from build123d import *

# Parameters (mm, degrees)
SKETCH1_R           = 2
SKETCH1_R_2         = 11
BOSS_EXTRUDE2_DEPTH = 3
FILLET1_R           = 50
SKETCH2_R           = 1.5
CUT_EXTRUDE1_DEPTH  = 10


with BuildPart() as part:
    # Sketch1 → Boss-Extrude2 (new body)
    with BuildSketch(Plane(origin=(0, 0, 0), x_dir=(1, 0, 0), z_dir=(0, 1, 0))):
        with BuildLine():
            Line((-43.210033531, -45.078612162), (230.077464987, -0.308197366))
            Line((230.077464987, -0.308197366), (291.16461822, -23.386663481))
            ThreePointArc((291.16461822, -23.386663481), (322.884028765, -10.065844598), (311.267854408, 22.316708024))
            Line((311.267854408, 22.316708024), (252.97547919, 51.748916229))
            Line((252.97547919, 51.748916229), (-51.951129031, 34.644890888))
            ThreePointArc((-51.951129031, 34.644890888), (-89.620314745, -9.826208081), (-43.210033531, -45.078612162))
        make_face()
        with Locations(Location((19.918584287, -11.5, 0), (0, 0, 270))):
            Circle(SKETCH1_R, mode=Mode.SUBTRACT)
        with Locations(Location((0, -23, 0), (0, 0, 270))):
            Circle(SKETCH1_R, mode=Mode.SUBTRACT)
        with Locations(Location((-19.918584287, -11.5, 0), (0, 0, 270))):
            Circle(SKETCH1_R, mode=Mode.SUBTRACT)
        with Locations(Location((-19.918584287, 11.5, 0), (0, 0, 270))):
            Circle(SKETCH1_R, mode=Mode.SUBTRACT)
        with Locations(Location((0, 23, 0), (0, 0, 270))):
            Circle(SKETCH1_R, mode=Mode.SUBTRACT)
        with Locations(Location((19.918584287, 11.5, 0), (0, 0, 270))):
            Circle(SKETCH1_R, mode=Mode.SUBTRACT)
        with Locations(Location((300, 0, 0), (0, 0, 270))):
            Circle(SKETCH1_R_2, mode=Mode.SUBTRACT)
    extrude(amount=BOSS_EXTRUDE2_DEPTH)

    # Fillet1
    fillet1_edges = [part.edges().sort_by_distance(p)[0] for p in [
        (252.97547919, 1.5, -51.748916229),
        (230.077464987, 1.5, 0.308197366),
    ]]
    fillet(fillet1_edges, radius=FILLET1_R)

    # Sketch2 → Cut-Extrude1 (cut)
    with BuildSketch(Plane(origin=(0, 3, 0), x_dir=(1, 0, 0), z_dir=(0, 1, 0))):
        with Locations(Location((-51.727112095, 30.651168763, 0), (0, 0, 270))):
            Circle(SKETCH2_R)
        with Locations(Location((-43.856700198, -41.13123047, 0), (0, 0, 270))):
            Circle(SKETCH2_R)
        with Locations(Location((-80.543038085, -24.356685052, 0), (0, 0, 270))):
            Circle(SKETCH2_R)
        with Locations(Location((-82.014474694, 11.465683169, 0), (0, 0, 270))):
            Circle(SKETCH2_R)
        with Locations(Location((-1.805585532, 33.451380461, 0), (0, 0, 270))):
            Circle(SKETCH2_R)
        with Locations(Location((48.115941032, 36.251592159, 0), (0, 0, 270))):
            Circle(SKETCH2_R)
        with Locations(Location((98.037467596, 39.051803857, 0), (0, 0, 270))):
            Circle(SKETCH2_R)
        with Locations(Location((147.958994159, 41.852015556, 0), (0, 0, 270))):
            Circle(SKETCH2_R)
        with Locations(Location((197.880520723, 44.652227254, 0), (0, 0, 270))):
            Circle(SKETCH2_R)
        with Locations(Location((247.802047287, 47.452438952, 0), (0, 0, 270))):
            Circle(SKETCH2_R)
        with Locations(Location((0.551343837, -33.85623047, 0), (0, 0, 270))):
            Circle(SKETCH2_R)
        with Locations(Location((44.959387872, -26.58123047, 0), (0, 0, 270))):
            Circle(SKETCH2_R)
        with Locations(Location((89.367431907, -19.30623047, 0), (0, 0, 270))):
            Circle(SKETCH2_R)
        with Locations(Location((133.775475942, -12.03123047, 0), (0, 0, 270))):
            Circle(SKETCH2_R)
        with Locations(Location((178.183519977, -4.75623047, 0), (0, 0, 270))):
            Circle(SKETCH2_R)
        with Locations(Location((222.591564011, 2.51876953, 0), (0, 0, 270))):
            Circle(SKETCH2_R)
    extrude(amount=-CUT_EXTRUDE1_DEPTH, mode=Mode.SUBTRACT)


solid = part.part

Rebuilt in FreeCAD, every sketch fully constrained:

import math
import FreeCAD as App
import Part
import Sketcher


def edges_at(feature, points):
    """Names of the edges that pass closest to the given points."""
    edges = feature.Shape.Edges
    near = lambda p: min(range(len(edges)), key=lambda i: edges[i].distToShape(Part.Vertex(*p))[0])
    return sorted({f"Edge{near(p) + 1}" for p in points})

doc = App.newDocument("Part")
body = doc.addObject("PartDesign::Body", "Body")

# Sketch on XZ plane
sketch1 = body.newObject("Sketcher::SketchObject", "Sketch")
sketch1.AttachmentSupport = (doc.getObject("XZ_Plane"), [""])
sketch1.MapMode = "FlatFace"
sketch1.addGeometry(Part.LineSegment(App.Vector(-43.2, 45.1, 0), App.Vector(230.1, 0.3, 0)), False)
sketch1.addGeometry(Part.LineSegment(App.Vector(230.1, 0.3, 0), App.Vector(291.2, 23.4, 0)), False)
sketch1.addGeometry(Part.ArcOfCircle(Part.Circle(App.Vector(300, 0, 0), App.Vector(0, 0, 1), 25), math.radians(-63), math.radians(111)), False)
sketch1.addGeometry(Part.LineSegment(App.Vector(311.3, -22.3, 0), App.Vector(253, -51.7, 0)), False)
sketch1.addGeometry(Part.LineSegment(App.Vector(253, -51.7, 0), App.Vector(-52, -34.6, 0)), False)
sketch1.addGeometry(Part.ArcOfCircle(Part.Circle(App.Vector(-49.7, 5.4, 0), App.Vector(0, 0, 1), 40.2), math.radians(81), math.radians(267)), False)
sketch1.addGeometry(Part.Circle(App.Vector(0, 23, 0), App.Vector(0, 0, 1), 2), False)
sketch1.addGeometry(Part.Circle(App.Vector(-19.9, 11.5, 0), App.Vector(0, 0, 1), 2), False)
sketch1.addGeometry(Part.Circle(App.Vector(19.9, 11.5, 0), App.Vector(0, 0, 1), 2), False)
sketch1.addGeometry(Part.Circle(App.Vector(300, 0, 0), App.Vector(0, 0, 1), 11), False)
sketch1.addGeometry(Part.Circle(App.Vector(-19.9, -11.5, 0), App.Vector(0, 0, 1), 2), False)
sketch1.addGeometry(Part.Circle(App.Vector(19.9, -11.5, 0), App.Vector(0, 0, 1), 2), False)
sketch1.addGeometry(Part.Circle(App.Vector(0, -23, 0), App.Vector(0, 0, 1), 2), False)
sketch1.addConstraint(Sketcher.Constraint("Coincident", 0, 2, 1, 1))
sketch1.addConstraint(Sketcher.Constraint("Tangent", 1, 2, 2, 2))
sketch1.addConstraint(Sketcher.Constraint("Tangent", 2, 1, 3, 1))
sketch1.addConstraint(Sketcher.Constraint("Coincident", 3, 2, 4, 1))
sketch1.addConstraint(Sketcher.Constraint("Tangent", 4, 2, 5, 2))
sketch1.addConstraint(Sketcher.Constraint("Tangent", 5, 1, 0, 1))
sketch1.addConstraint(Sketcher.Constraint("Coincident", 9, 3, 2, 3))
sketch1.addConstraint(Sketcher.Constraint("Equal", 6, 7))
sketch1.addConstraint(Sketcher.Constraint("Equal", 7, 8))
sketch1.addConstraint(Sketcher.Constraint("Equal", 8, 10))
sketch1.addConstraint(Sketcher.Constraint("Equal", 10, 11))
sketch1.addConstraint(Sketcher.Constraint("Equal", 11, 12))
sketch1.addConstraint(Sketcher.Constraint("Symmetric", 8, 3, 10, 3, -1, 1))
sketch1.addConstraint(Sketcher.Constraint("Symmetric", 7, 3, 11, 3, -1, 1))
sketch1.addConstraint(Sketcher.Constraint("Symmetric", 6, 3, 12, 3, -1, 1))
sketch1.addConstraint(Sketcher.Constraint("Symmetric", 7, 3, 8, 3, -2))
sketch1.addConstraint(Sketcher.Constraint("PointOnObject", 2, 3, -1))
sketch1.addConstraint(Sketcher.Constraint("PointOnObject", 6, 3, -2))
sketch1.addConstraint(Sketcher.Constraint("Equal", 1, 3))
sketch1.addConstraint(Sketcher.Constraint("Diameter", 6, 4.0))
sketch1.addConstraint(Sketcher.Constraint("Diameter", 9, 22.0))
sketch1.addConstraint(Sketcher.Constraint("Radius", 2, 25.0))
sketch1.addConstraint(Sketcher.Constraint("DistanceX", -1, 1, 2, 3, 300.0))
sketch1.addConstraint(Sketcher.Constraint("DistanceY", -1, 1, 6, 3, 23.0))
sketch1.addConstraint(Sketcher.Constraint("DistanceY", 10, 3, 7, 3, 23.0))
sketch1.addConstraint(Sketcher.Constraint("Radius", 5, 40.157391))
sketch1.addConstraint(Sketcher.Constraint("Distance", 0, 276.930401))
sketch1.addConstraint(Sketcher.Constraint("Distance", 1, 65.30127))
sketch1.addConstraint(Sketcher.Constraint("DistanceX", -1, 1, 1, 2, 291.164618))
sketch1.addConstraint(Sketcher.Constraint("DistanceY", 2, 1, -1, 1, 22.316708))
sketch1.addConstraint(Sketcher.Constraint("DistanceX", 4, 2, -1, 1, 51.951129))
sketch1.addConstraint(Sketcher.Constraint("DistanceX", 5, 3, 7, 3, 29.783561))
pad1 = body.newObject("PartDesign::Pad", "Pad")
pad1.Profile = sketch1
pad1.Length = 3
pad1.Reversed = True
doc.recompute()

fillet = body.newObject("PartDesign::Fillet", "Fillet")
fillet.Base = (pad1, edges_at(pad1, [(252.975, 1.5, -51.749), (230.077, 1.5, 0.308)]))
fillet.Radius = 50

# Sketch on XZ plane
sketch2 = body.newObject("Sketcher::SketchObject", "Sketch001")
sketch2.AttachmentSupport = (doc.getObject("XZ_Plane"), [""])
sketch2.MapMode = "FlatFace"
sketch2.AttachmentOffset = App.Placement(App.Vector(0, 0, -3), App.Rotation())
sketch2.addGeometry(Part.Circle(App.Vector(-51.7, -30.7, 0), App.Vector(0, 0, 1), 1.5), False)
sketch2.addGeometry(Part.Circle(App.Vector(-43.9, 41.1, 0), App.Vector(0, 0, 1), 1.5), False)
sketch2.addGeometry(Part.Circle(App.Vector(-80.5, 24.4, 0), App.Vector(0, 0, 1), 1.5), False)
sketch2.addGeometry(Part.Circle(App.Vector(-82, -11.5, 0), App.Vector(0, 0, 1), 1.5), False)
sketch2.addGeometry(Part.Circle(App.Vector(-1.8, -33.5, 0), App.Vector(0, 0, 1), 1.5), False)
sketch2.addGeometry(Part.Circle(App.Vector(48.1, -36.3, 0), App.Vector(0, 0, 1), 1.5), False)
sketch2.addGeometry(Part.Circle(App.Vector(98, -39.1, 0), App.Vector(0, 0, 1), 1.5), False)
sketch2.addGeometry(Part.Circle(App.Vector(148, -41.9, 0), App.Vector(0, 0, 1), 1.5), False)
sketch2.addGeometry(Part.Circle(App.Vector(197.9, -44.7, 0), App.Vector(0, 0, 1), 1.5), False)
sketch2.addGeometry(Part.Circle(App.Vector(247.8, -47.5, 0), App.Vector(0, 0, 1), 1.5), False)
sketch2.addGeometry(Part.Circle(App.Vector(0.6, 33.9, 0), App.Vector(0, 0, 1), 1.5), False)
sketch2.addGeometry(Part.Circle(App.Vector(45, 26.6, 0), App.Vector(0, 0, 1), 1.5), False)
sketch2.addGeometry(Part.Circle(App.Vector(89.4, 19.3, 0), App.Vector(0, 0, 1), 1.5), False)
sketch2.addGeometry(Part.Circle(App.Vector(133.8, 12, 0), App.Vector(0, 0, 1), 1.5), False)
sketch2.addGeometry(Part.Circle(App.Vector(178.2, 4.8, 0), App.Vector(0, 0, 1), 1.5), False)
sketch2.addGeometry(Part.Circle(App.Vector(222.6, -2.5, 0), App.Vector(0, 0, 1), 1.5), False)
sketch2.addConstraint(Sketcher.Constraint("Equal", 0, 1))
sketch2.addConstraint(Sketcher.Constraint("Equal", 1, 2))
sketch2.addConstraint(Sketcher.Constraint("Equal", 2, 3))
sketch2.addConstraint(Sketcher.Constraint("Equal", 3, 4))
sketch2.addConstraint(Sketcher.Constraint("Equal", 4, 5))
sketch2.addConstraint(Sketcher.Constraint("Equal", 5, 6))
sketch2.addConstraint(Sketcher.Constraint("Equal", 6, 7))
sketch2.addConstraint(Sketcher.Constraint("Equal", 7, 8))
sketch2.addConstraint(Sketcher.Constraint("Equal", 8, 9))
sketch2.addConstraint(Sketcher.Constraint("Equal", 9, 10))
sketch2.addConstraint(Sketcher.Constraint("Equal", 10, 11))
sketch2.addConstraint(Sketcher.Constraint("Equal", 11, 12))
sketch2.addConstraint(Sketcher.Constraint("Equal", 12, 13))
sketch2.addConstraint(Sketcher.Constraint("Equal", 13, 14))
sketch2.addConstraint(Sketcher.Constraint("Equal", 14, 15))
sketch2.addConstraint(Sketcher.Constraint("Diameter", 0, 3.0))
sketch2.addConstraint(Sketcher.Constraint("DistanceY", 11, 3, 1, 3, 14.55))
sketch2.addConstraint(Sketcher.Constraint("DistanceY", 12, 3, 10, 3, 14.55))
sketch2.addConstraint(Sketcher.Constraint("DistanceY", 13, 3, 11, 3, 14.55))
sketch2.addConstraint(Sketcher.Constraint("DistanceY", 14, 3, 12, 3, 14.55))
sketch2.addConstraint(Sketcher.Constraint("DistanceY", 15, 3, 13, 3, 14.55))
sketch2.addConstraint(Sketcher.Constraint("DistanceY", 10, 3, 1, 3, 7.275))
sketch2.addConstraint(Sketcher.Constraint("DistanceX", 14, 3, 8, 3, 19.697001))
sketch2.addConstraint(Sketcher.Constraint("DistanceX", 1, 3, -1, 1, 43.8567))
sketch2.addConstraint(Sketcher.Constraint("DistanceY", 0, 3, 1, 3, 71.782399))
sketch2.addConstraint(Sketcher.Constraint("DistanceY", 0, 3, -1, 1, 30.651169))
sketch2.addConstraint(Sketcher.Constraint("DistanceX", 2, 3, -1, 1, 80.543038))
sketch2.addConstraint(Sketcher.Constraint("DistanceY", 4, 3, -1, 1, 33.45138))
sketch2.addConstraint(Sketcher.Constraint("DistanceX", -1, 1, 5, 3, 48.115941))
sketch2.addConstraint(Sketcher.Constraint("DistanceX", -1, 1, 8, 3, 197.880521))
sketch2.addConstraint(Sketcher.Constraint("DistanceY", 9, 3, -1, 1, 47.452439))
sketch2.addConstraint(Sketcher.Constraint("DistanceX", -1, 1, 12, 3, 89.367432))
sketch2.addConstraint(Sketcher.Constraint("DistanceX", 0, 3, 1, 3, 7.870412))
sketch2.addConstraint(Sketcher.Constraint("DistanceY", 3, 3, 2, 3, 35.822368))
sketch2.addConstraint(Sketcher.Constraint("DistanceX", 3, 3, 4, 3, 80.208889))
sketch2.addConstraint(Sketcher.Constraint("DistanceY", 5, 3, 4, 3, 2.800212))
sketch2.addConstraint(Sketcher.Constraint("DistanceY", 5, 3, 3, 3, 24.785909))
sketch2.addConstraint(Sketcher.Constraint("DistanceY", 6, 3, 5, 3, 2.800212))
sketch2.addConstraint(Sketcher.Constraint("DistanceX", 0, 3, 6, 3, 149.76458))
sketch2.addConstraint(Sketcher.Constraint("DistanceY", 7, 3, 6, 3, 2.800212))
sketch2.addConstraint(Sketcher.Constraint("DistanceX", 4, 3, 7, 3, 149.76458))
sketch2.addConstraint(Sketcher.Constraint("DistanceY", 8, 3, 7, 3, 2.800212))
sketch2.addConstraint(Sketcher.Constraint("DistanceX", 6, 3, 9, 3, 149.76458))
sketch2.addConstraint(Sketcher.Constraint("DistanceX", 4, 3, 10, 3, 2.356929))
sketch2.addConstraint(Sketcher.Constraint("DistanceX", 2, 3, 10, 3, 81.094382))
sketch2.addConstraint(Sketcher.Constraint("DistanceX", 11, 3, 6, 3, 53.07808))
sketch2.addConstraint(Sketcher.Constraint("DistanceX", 13, 3, 7, 3, 14.183518))
sketch2.addConstraint(Sketcher.Constraint("DistanceX", 7, 3, 15, 3, 74.63257))
pocket1 = body.newObject("PartDesign::Pocket", "Pocket")
pocket1.Profile = sketch2
pocket1.Length = 10
pocket1.Reversed = True

doc.recompute()
